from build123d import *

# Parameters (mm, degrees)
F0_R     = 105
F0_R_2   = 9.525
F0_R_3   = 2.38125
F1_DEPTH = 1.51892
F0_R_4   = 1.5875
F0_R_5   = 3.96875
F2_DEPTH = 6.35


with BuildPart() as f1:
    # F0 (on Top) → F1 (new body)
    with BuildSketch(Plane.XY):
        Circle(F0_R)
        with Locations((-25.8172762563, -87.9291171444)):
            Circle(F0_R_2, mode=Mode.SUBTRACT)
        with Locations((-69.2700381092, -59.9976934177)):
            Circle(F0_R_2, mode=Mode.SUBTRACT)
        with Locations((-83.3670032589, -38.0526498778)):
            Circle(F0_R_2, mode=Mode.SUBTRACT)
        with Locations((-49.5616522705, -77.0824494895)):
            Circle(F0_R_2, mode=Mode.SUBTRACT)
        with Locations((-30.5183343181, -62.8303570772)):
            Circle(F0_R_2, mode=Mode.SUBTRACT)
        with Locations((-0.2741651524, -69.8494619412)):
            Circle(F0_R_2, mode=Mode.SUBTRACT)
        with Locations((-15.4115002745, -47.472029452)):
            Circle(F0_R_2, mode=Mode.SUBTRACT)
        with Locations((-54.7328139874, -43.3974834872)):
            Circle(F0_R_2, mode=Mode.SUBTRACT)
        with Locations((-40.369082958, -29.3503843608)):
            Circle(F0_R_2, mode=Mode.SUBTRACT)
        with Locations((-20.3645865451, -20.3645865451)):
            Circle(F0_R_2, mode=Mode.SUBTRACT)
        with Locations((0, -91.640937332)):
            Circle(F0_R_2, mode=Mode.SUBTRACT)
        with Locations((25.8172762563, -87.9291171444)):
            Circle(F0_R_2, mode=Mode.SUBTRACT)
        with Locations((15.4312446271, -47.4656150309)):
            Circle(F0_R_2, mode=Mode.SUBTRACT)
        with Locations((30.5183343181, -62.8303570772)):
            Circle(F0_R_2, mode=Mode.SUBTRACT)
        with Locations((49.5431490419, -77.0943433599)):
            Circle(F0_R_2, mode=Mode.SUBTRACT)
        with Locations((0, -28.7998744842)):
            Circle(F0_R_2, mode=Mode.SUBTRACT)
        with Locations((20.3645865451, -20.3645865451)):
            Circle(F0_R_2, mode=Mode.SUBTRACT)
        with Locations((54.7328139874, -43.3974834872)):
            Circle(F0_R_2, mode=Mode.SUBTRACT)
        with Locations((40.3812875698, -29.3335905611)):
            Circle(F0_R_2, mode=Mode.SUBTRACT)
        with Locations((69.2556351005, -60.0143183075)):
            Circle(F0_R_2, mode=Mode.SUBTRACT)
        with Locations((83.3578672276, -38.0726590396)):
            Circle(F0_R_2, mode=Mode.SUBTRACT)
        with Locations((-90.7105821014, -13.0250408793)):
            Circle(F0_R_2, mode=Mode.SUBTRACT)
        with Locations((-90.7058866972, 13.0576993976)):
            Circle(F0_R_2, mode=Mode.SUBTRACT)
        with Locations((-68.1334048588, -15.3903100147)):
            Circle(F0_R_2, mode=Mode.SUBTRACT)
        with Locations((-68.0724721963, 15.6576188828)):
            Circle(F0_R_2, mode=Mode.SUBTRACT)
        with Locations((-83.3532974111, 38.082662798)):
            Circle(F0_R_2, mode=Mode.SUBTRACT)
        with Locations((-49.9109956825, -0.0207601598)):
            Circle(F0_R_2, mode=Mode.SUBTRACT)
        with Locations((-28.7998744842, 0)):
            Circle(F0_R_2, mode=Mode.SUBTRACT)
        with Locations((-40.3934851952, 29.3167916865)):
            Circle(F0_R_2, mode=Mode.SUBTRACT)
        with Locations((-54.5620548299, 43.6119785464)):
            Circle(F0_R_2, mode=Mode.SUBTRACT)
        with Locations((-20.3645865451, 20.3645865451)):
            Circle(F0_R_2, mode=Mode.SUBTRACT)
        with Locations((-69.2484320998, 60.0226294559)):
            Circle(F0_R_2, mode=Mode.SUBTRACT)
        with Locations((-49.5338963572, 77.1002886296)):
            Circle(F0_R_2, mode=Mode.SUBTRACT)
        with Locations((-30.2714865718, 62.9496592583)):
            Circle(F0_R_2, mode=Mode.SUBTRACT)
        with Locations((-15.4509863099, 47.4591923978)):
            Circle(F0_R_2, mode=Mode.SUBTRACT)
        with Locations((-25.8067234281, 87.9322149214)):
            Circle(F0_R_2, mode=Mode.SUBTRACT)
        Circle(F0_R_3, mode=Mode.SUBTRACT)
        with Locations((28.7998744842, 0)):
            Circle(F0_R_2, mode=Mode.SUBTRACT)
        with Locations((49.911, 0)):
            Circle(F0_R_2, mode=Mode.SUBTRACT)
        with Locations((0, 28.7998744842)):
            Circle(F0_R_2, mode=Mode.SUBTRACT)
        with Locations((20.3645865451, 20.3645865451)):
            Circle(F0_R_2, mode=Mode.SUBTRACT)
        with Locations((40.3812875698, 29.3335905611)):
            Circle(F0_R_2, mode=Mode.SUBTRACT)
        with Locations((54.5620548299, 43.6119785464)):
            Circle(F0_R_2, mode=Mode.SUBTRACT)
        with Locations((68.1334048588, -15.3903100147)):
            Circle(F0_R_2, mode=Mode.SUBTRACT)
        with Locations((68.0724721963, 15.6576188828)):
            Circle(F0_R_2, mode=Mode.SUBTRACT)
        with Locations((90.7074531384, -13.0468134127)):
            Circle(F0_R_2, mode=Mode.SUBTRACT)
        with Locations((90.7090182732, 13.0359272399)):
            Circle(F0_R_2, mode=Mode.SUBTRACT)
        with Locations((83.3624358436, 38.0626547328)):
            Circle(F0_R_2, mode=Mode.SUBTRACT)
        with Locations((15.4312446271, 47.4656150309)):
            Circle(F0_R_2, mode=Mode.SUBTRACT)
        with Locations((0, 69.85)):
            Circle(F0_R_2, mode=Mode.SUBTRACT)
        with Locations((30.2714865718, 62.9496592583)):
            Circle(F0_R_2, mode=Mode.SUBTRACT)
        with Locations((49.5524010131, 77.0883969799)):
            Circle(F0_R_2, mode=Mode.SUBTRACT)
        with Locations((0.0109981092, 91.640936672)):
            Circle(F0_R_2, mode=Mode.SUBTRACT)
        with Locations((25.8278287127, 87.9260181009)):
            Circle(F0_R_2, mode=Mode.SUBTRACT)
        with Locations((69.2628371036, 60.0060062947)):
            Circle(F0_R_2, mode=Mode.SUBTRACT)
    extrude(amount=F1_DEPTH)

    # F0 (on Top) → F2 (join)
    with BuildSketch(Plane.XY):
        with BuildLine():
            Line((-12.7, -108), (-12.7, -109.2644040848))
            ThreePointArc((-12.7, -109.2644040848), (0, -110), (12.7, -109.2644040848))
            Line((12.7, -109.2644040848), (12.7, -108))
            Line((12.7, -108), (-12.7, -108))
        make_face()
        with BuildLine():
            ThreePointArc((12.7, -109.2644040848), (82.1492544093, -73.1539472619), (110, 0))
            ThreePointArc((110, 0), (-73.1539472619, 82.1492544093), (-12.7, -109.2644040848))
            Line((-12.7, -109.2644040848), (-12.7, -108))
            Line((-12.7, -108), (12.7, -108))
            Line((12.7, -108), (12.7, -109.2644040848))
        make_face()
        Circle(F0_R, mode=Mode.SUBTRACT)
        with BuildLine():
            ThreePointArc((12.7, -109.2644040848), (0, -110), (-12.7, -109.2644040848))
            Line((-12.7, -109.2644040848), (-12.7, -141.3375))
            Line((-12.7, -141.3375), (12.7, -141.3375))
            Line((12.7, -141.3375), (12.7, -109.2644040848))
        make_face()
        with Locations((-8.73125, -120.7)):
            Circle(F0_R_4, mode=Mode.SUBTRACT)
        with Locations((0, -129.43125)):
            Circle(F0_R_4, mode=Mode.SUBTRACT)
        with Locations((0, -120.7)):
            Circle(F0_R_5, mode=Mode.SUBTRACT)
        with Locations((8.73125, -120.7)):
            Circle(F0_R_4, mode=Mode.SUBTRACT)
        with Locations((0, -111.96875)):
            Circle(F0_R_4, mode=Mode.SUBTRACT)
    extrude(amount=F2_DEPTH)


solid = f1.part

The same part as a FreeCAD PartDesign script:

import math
import FreeCAD as App
import Part
import Sketcher

V = App.Vector
Q = App.Units.Quantity

doc = App.newDocument("Part")
body = doc.addObject("PartDesign::Body", "Body")

# Sketch on XY plane
sketch1 = body.newObject("Sketcher::SketchObject", "Sketch")
sketch1.AttachmentSupport = (doc.getObject("XY_Plane"), [""])
sketch1.MapMode = "FlatFace"
sketch1.addGeometry(Part.Circle(V(0, 0, 0), V(0, 0, 1), 105), False)
sketch1.addGeometry(Part.Circle(V(-69.3, -60, 0), V(0, 0, 1), 9.5), False)
sketch1.addGeometry(Part.Circle(V(-49.6, -77.1, 0), V(0, 0, 1), 9.5), False)
sketch1.addGeometry(Part.Circle(V(-25.8, -87.9, 0), V(0, 0, 1), 9.5), False)
sketch1.addGeometry(Part.Circle(V(-30.5, -62.8, 0), V(0, 0, 1), 9.5), False)
sketch1.addGeometry(Part.Circle(V(-0.3, -69.8, 0), V(0, 0, 1), 9.5), False)
sketch1.addGeometry(Part.Circle(V(-83.4, -38.1, 0), V(0, 0, 1), 9.5), False)
sketch1.addGeometry(Part.Circle(V(-54.7, -43.4, 0), V(0, 0, 1), 9.5), False)
sketch1.addGeometry(Part.Circle(V(-90.7, -13, 0), V(0, 0, 1), 9.5), False)
sketch1.addGeometry(Part.Circle(V(-68.1, -15.4, 0), V(0, 0, 1), 9.5), False)
sketch1.addGeometry(Part.Circle(V(-40.4, -29.4, 0), V(0, 0, 1), 9.5), False)
sketch1.addGeometry(Part.Circle(V(-15.4, -47.5, 0), V(0, 0, 1), 9.5), False)
sketch1.addGeometry(Part.Circle(V(-49.9, 0, 0), V(0, 0, 1), 9.5), False)
sketch1.addGeometry(Part.Circle(V(-20.4, -20.4, 0), V(0, 0, 1), 9.5), False)
sketch1.addGeometry(Part.Circle(V(0, -91.6, 0), V(0, 0, 1), 9.5), False)
sketch1.addGeometry(Part.Circle(V(25.8, -87.9, 0), V(0, 0, 1), 9.5), False)
sketch1.addGeometry(Part.Circle(V(49.5, -77.1, 0), V(0, 0, 1), 9.5), False)
sketch1.addGeometry(Part.Circle(V(30.5, -62.8, 0), V(0, 0, 1), 9.5), False)
sketch1.addGeometry(Part.Circle(V(69.3, -60, 0), V(0, 0, 1), 9.5), False)
sketch1.addGeometry(Part.Circle(V(15.4, -47.5, 0), V(0, 0, 1), 9.5), False)
sketch1.addGeometry(Part.Circle(V(0, -28.8, 0), V(0, 0, 1), 9.5), False)
sketch1.addGeometry(Part.Circle(V(40.4, -29.3, 0), V(0, 0, 1), 9.5), False)
sketch1.addGeometry(Part.Circle(V(20.4, -20.4, 0), V(0, 0, 1), 9.5), False)
sketch1.addGeometry(Part.Circle(V(54.7, -43.4, 0), V(0, 0, 1), 9.5), False)
sketch1.addGeometry(Part.Circle(V(83.4, -38.1, 0), V(0, 0, 1), 9.5), False)
sketch1.addGeometry(Part.Circle(V(68.1, -15.4, 0), V(0, 0, 1), 9.5), False)
sketch1.addGeometry(Part.Circle(V(90.7, -13, 0), V(0, 0, 1), 9.5), False)
sketch1.addGeometry(Part.Circle(V(-90.7, 13.1, 0), V(0, 0, 1), 9.5), False)
sketch1.addGeometry(Part.Circle(V(-68.1, 15.7, 0), V(0, 0, 1), 9.5), False)
sketch1.addGeometry(Part.Circle(V(-83.4, 38.1, 0), V(0, 0, 1), 9.5), False)
sketch1.addGeometry(Part.Circle(V(-54.6, 43.6, 0), V(0, 0, 1), 9.5), False)
sketch1.addGeometry(Part.Circle(V(-28.8, 0, 0), V(0, 0, 1), 9.5), False)
sketch1.addGeometry(Part.Circle(V(-20.4, 20.4, 0), V(0, 0, 1), 9.5), False)
sketch1.addGeometry(Part.Circle(V(-40.4, 29.3, 0), V(0, 0, 1), 9.5), False)
sketch1.addGeometry(Part.Circle(V(-15.5, 47.5, 0), V(0, 0, 1), 9.5), False)
sketch1.addGeometry(Part.Circle(V(-69.2, 60, 0), V(0, 0, 1), 9.5), False)
sketch1.addGeometry(Part.Circle(V(-30.3, 62.9, 0), V(0, 0, 1), 9.5), False)
sketch1.addGeometry(Part.Circle(V(-49.5, 77.1, 0), V(0, 0, 1), 9.5), False)
sketch1.addGeometry(Part.Circle(V(-25.8, 87.9, 0), V(0, 0, 1), 9.5), False)
sketch1.addGeometry(Part.Circle(V(0, 0, 0), V(0, 0, 1), 2.4), False)
sketch1.addGeometry(Part.Circle(V(20.4, 20.4, 0), V(0, 0, 1), 9.5), False)
sketch1.addGeometry(Part.Circle(V(28.8, 0, 0), V(0, 0, 1), 9.5), False)
sketch1.addGeometry(Part.Circle(V(49.9, 0, 0), V(0, 0, 1), 9.5), False)
sketch1.addGeometry(Part.Circle(V(0, 28.8, 0), V(0, 0, 1), 9.5), False)
sketch1.addGeometry(Part.Circle(V(15.4, 47.5, 0), V(0, 0, 1), 9.5), False)
sketch1.addGeometry(Part.Circle(V(40.4, 29.3, 0), V(0, 0, 1), 9.5), False)
sketch1.addGeometry(Part.Circle(V(68.1, 15.7, 0), V(0, 0, 1), 9.5), False)
sketch1.addGeometry(Part.Circle(V(90.7, 13, 0), V(0, 0, 1), 9.5), False)
sketch1.addGeometry(Part.Circle(V(54.6, 43.6, 0), V(0, 0, 1), 9.5), False)
sketch1.addGeometry(Part.Circle(V(83.4, 38.1, 0), V(0, 0, 1), 9.5), False)
sketch1.addGeometry(Part.Circle(V(0, 69.8, 0), V(0, 0, 1), 9.5), False)
sketch1.addGeometry(Part.Circle(V(30.3, 62.9, 0), V(0, 0, 1), 9.5), False)
sketch1.addGeometry(Part.Circle(V(0, 91.6, 0), V(0, 0, 1), 9.5), False)
sketch1.addGeometry(Part.Circle(V(25.8, 87.9, 0), V(0, 0, 1), 9.5), False)
sketch1.addGeometry(Part.Circle(V(49.6, 77.1, 0), V(0, 0, 1), 9.5), False)
sketch1.addGeometry(Part.Circle(V(69.3, 60, 0), V(0, 0, 1), 9.5), False)
sketch1.addConstraint(Sketcher.Constraint("Coincident", 0, 3, -1, 1))
sketch1.addConstraint(Sketcher.Constraint("Coincident", 39, 3, -1, 1))
sketch1.addConstraint(Sketcher.Constraint("Equal", 1, 2))
sketch1.addConstraint(Sketcher.Constraint("Equal", 2, 3))
sketch1.addConstraint(Sketcher.Constraint("Equal", 3, 4))
sketch1.addConstraint(Sketcher.Constraint("Equal", 4, 5))
sketch1.addConstraint(Sketcher.Constraint("Equal", 5, 6))
sketch1.addConstraint(Sketcher.Constraint("Equal", 6, 7))
sketch1.addConstraint(Sketcher.Constraint("Equal", 7, 8))
sketch1.addConstraint(Sketcher.Constraint("Equal", 8, 9))
sketch1.addConstraint(Sketcher.Constraint("Equal", 9, 10))
sketch1.addConstraint(Sketcher.Constraint("Equal", 10, 11))
sketch1.addConstraint(Sketcher.Constraint("Equal", 11, 12))
sketch1.addConstraint(Sketcher.Constraint("Equal", 12, 13))
sketch1.addConstraint(Sketcher.Constraint("Equal", 13, 14))
sketch1.addConstraint(Sketcher.Constraint("Equal", 14, 15))
sketch1.addConstraint(Sketcher.Constraint("Equal", 15, 16))
sketch1.addConstraint(Sketcher.Constraint("Equal", 16, 17))
sketch1.addConstraint(Sketcher.Constraint("Equal", 17, 18))
sketch1.addConstraint(Sketcher.Constraint("Equal", 18, 19))
sketch1.addConstraint(Sketcher.Constraint("Equal", 19, 20))
sketch1.addConstraint(Sketcher.Constraint("Equal", 20, 21))
sketch1.addConstraint(Sketcher.Constraint("Equal", 21, 22))
sketch1.addConstraint(Sketcher.Constraint("Equal", 22, 23))
sketch1.addConstraint(Sketcher.Constraint("Equal", 23, 24))
sketch1.addConstraint(Sketcher.Constraint("Equal", 24, 25))
sketch1.addConstraint(Sketcher.Constraint("Equal", 25, 26))
sketch1.addConstraint(Sketcher.Constraint("Equal", 26, 27))
sketch1.addConstraint(Sketcher.Constraint("Equal", 27, 28))
sketch1.addConstraint(Sketcher.Constraint("Equal", 28, 29))
sketch1.addConstraint(Sketcher.Constraint("Equal", 29, 30))
sketch1.addConstraint(Sketcher.Constraint("Equal", 30, 31))
sketch1.addConstraint(Sketcher.Constraint("Equal", 31, 32))
sketch1.addConstraint(Sketcher.Constraint("Equal", 32, 33))
sketch1.addConstraint(Sketcher.Constraint("Equal", 33, 34))
sketch1.addConstraint(Sketcher.Constraint("Equal", 34, 35))
sketch1.addConstraint(Sketcher.Constraint("Equal", 35, 36))
sketch1.addConstraint(Sketcher.Constraint("Equal", 36, 37))
sketch1.addConstraint(Sketcher.Constraint("Equal", 37, 38))
sketch1.addConstraint(Sketcher.Constraint("Equal", 38, 40))
sketch1.addConstraint(Sketcher.Constraint("Equal", 40, 41))
sketch1.addConstraint(Sketcher.Constraint("Equal", 41, 42))
sketch1.addConstraint(Sketcher.Constraint("Equal", 42, 43))
sketch1.addConstraint(Sketcher.Constraint("Equal", 43, 44))
sketch1.addConstraint(Sketcher.Constraint("Equal", 44, 45))
sketch1.addConstraint(Sketcher.Constraint("Equal", 45, 46))
sketch1.addConstraint(Sketcher.Constraint("Equal", 46, 47))
sketch1.addConstraint(Sketcher.Constraint("Equal", 47, 48))
sketch1.addConstraint(Sketcher.Constraint("Equal", 48, 49))
sketch1.addConstraint(Sketcher.Constraint("Equal", 49, 50))
sketch1.addConstraint(Sketcher.Constraint("Equal", 50, 51))
sketch1.addConstraint(Sketcher.Constraint("Equal", 51, 52))
sketch1.addConstraint(Sketcher.Constraint("Equal", 52, 53))
sketch1.addConstraint(Sketcher.Constraint("Equal", 53, 54))
sketch1.addConstraint(Sketcher.Constraint("Equal", 54, 55))
sketch1.addConstraint(Sketcher.Constraint("Symmetric", 22, 3, 32, 3, -1, 1))
sketch1.addConstraint(Sketcher.Constraint("Symmetric", 13, 3, 40, 3, -1, 1))
sketch1.addConstraint(Sketcher.Constraint("Symmetric", 31, 3, 41, 3, -1, 1))
sketch1.addConstraint(Sketcher.Constraint("Symmetric", 20, 3, 43, 3, -1, 1))
sketch1.addConstraint(Sketcher.Constraint("Symmetric", 3, 3, 15, 3, -2))
sketch1.addConstraint(Sketcher.Constraint("Symmetric", 4, 3, 17, 3, -2))
sketch1.addConstraint(Sketcher.Constraint("Symmetric", 13, 3, 22, 3, -2))
sketch1.addConstraint(Sketcher.Constraint("Symmetric", 7, 3, 23, 3, -2))
sketch1.addConstraint(Sketcher.Constraint("Symmetric", 9, 3, 25, 3, -2))
sketch1.addConstraint(Sketcher.Constraint("Symmetric", 28, 3, 46, 3, -2))
sketch1.addConstraint(Sketcher.Constraint("Symmetric", 30, 3, 48, 3, -2))
sketch1.addConstraint(Sketcher.Constraint("Symmetric", 36, 3, 51, 3, -2))
sketch1.addConstraint(Sketcher.Constraint("Symmetric", 19, 3, 44, 3, -1))
sketch1.addConstraint(Sketcher.Constraint("Symmetric", 21, 3, 45, 3, -1))
sketch1.addConstraint(Sketcher.Constraint("PointOnObject", 14, 3, -2))
sketch1.addConstraint(Sketcher.Constraint("PointOnObject", 20, 3, -2))
sketch1.addConstraint(Sketcher.Constraint("PointOnObject", 31, 3, -1))
sketch1.addConstraint(Sketcher.Constraint("PointOnObject", 42, 3, -1))
sketch1.addConstraint(Sketcher.Constraint("PointOnObject", 50, 3, -2))
sketch1.addConstraint(Sketcher.Constraint("Diameter", 1, Q("0.75 in")))
sketch1.addConstraint(Sketcher.Constraint("Diameter", 39, Q("0.1875 in")))
sketch1.addConstraint(Sketcher.Constraint("Diameter", 0, Q("210 mm")))
sketch1.addConstraint(Sketcher.Constraint("DistanceY", -1, 1, 50, 3, Q("2.75 in")))
sketch1.addConstraint(Sketcher.Constraint("DistanceX", 12, 3, -1, 1, Q("1.9649998 in")))
sketch1.addConstraint(Sketcher.Constraint("DistanceX", -1, 1, 42, 3, Q("1.965 in")))
sketch1.addConstraint(Sketcher.Constraint("DistanceX", -1, 1, 18, 3, Q("2.7265998 in")))
sketch1.addConstraint(Sketcher.Constraint("DistanceY", 12, 3, 27, 3, Q("0.5149 in")))
sketch1.addConstraint(Sketcher.Constraint("DistanceX", 11, 3, -1, 1, Q("15.4115 mm")))
sketch1.addConstraint(Sketcher.Constraint("DistanceY", -1, 1, 27, 3, Q("13.057699 mm")))
sketch1.addConstraint(Sketcher.Constraint("DistanceX", -1, 1, 52, 3, Q("0.010998 mm")))
sketch1.addConstraint(Sketcher.Constraint("DistanceX", -1, 1, 54, 3, Q("49.552401 mm")))
sketch1.addConstraint(Sketcher.Constraint("DistanceY", 2, 3, 6, 3, Q("39.0298 mm")))
sketch1.addConstraint(Sketcher.Constraint("DistanceX", 6, 3, 9, 3, Q("15.233598 mm")))
sketch1.addConstraint(Sketcher.Constraint("DistanceY", 7, 3, 10, 3, Q("14.047099 mm")))
sketch1.addConstraint(Sketcher.Constraint("DistanceX", 5, 3, 17, 3, Q("30.792499 mm")))
sketch1.addConstraint(Sketcher.Constraint("DistanceX", 17, 3, 18, 3, Q("38.737301 mm")))
sketch1.addConstraint(Sketcher.Constraint("DistanceY", 15, 3, 18, 3, Q("27.914799 mm")))
sketch1.addConstraint(Sketcher.Constraint("DistanceX", 22, 3, 21, 3, Q("20.016701 mm")))
sketch1.addConstraint(Sketcher.Constraint("DistanceY", 17, 3, 24, 3, Q("24.757698 mm")))
sketch1.addConstraint(Sketcher.Constraint("DistanceX", 29, 3, 12, 3, Q("33.442302 mm")))
sketch1.addConstraint(Sketcher.Constraint("DistanceX", 33, 3, 32, 3, Q("20.028899 mm")))
sketch1.addConstraint(Sketcher.Constraint("DistanceX", 32, 3, 34, 3, Q("4.9136 mm")))
sketch1.addConstraint(Sketcher.Constraint("DistanceY", 33, 3, 34, 3, Q("18.142401 mm")))
sketch1.addConstraint(Sketcher.Constraint("DistanceX", 36, 3, 34, 3, Q("14.8205 mm")))
sketch1.addConstraint(Sketcher.Constraint("DistanceX", 55, 3, 49, 3, Q("14.099599 mm")))
sketch1.addConstraint(Sketcher.Constraint("DistanceX", 1, 3, -1, 1, Q("69.270038 mm")))
sketch1.addConstraint(Sketcher.Constraint("DistanceY", 2, 3, -1, 1, Q("77.082449 mm")))
sketch1.addConstraint(Sketcher.Constraint("DistanceY", 5, 3, -1, 1, Q("69.849462 mm")))
sketch1.addConstraint(Sketcher.Constraint("DistanceY", 8, 3, -1, 1, Q("13.025041 mm")))
sketch1.addConstraint(Sketcher.Constraint("DistanceY", 9, 3, -1, 1, Q("15.39031 mm")))
sketch1.addConstraint(Sketcher.Constraint("DistanceY", 11, 3, -1, 1, Q("47.472029 mm")))
sketch1.addConstraint(Sketcher.Constraint("DistanceX", -1, 1, 16, 3, Q("49.543149 mm")))
sketch1.addConstraint(Sketcher.Constraint("DistanceY", 18, 3, -1, 1, Q("60.014318 mm")))
sketch1.addConstraint(Sketcher.Constraint("DistanceY", 21, 3, -1, 1, Q("29.333591 mm")))
sketch1.addConstraint(Sketcher.Constraint("DistanceY", 24, 3, -1, 1, Q("38.072659 mm")))
sketch1.addConstraint(Sketcher.Constraint("DistanceY", -1, 1, 28, 3, Q("15.657619 mm")))
sketch1.addConstraint(Sketcher.Constraint("DistanceY", -1, 1, 30, 3, Q("43.611979 mm")))
sketch1.addConstraint(Sketcher.Constraint("DistanceY", -1, 1, 33, 3, Q("29.316792 mm")))
sketch1.addConstraint(Sketcher.Constraint("DistanceY", -1, 1, 35, 3, Q("60.022629 mm")))
sketch1.addConstraint(Sketcher.Constraint("DistanceY", -1, 1, 36, 3, Q("62.949659 mm")))
sketch1.addConstraint(Sketcher.Constraint("DistanceY", -1, 1, 37, 3, Q("77.100289 mm")))
sketch1.addConstraint(Sketcher.Constraint("DistanceX", -1, 1, 47, 3, Q("90.709018 mm")))
sketch1.addConstraint(Sketcher.Constraint("DistanceX", -1, 1, 53, 3, Q("25.827829 mm")))
sketch1.addConstraint(Sketcher.Constraint("DistanceY", -1, 1, 53, 3, Q("87.926018 mm")))
sketch1.addConstraint(Sketcher.Constraint("DistanceX", 1, 3, 3, 3, Q("43.452762 mm")))
sketch1.addConstraint(Sketcher.Constraint("DistanceY", 5, 3, 1, 3, Q("9.851769 mm")))
sketch1.addConstraint(Sketcher.Constraint("DistanceX", 6, 3, 2, 3, Q("33.805351 mm")))
sketch1.addConstraint(Sketcher.Constraint("DistanceX", 6, 3, 4, 3, Q("52.848669 mm")))
sketch1.addConstraint(Sketcher.Constraint("DistanceY", 1, 3, 7, 3, Q("16.60021 mm")))
sketch1.addConstraint(Sketcher.Constraint("DistanceX", 6, 3, 7, 3, Q("28.634189 mm")))
sketch1.addConstraint(Sketcher.Constraint("DistanceX", 8, 3, 6, 3, Q("7.343579 mm")))
sketch1.addConstraint(Sketcher.Constraint("DistanceX", 7, 3, 10, 3, Q("14.363731 mm")))
sketch1.addConstraint(Sketcher.Constraint("DistanceX", 12, 3, 13, 3, Q("29.546409 mm")))
sketch1.addConstraint(Sketcher.Constraint("DistanceY", 14, 3, 3, 3, Q("3.71182 mm")))
sketch1.addConstraint(Sketcher.Constraint("DistanceY", 16, 3, 5, 3, Q("7.244881 mm")))
sketch1.addConstraint(Sketcher.Constraint("DistanceX", 19, 3, 17, 3, Q("15.08709 mm")))
sketch1.addConstraint(Sketcher.Constraint("DistanceY", 19, 3, 13, 3, Q("27.101028 mm")))
sketch1.addConstraint(Sketcher.Constraint("DistanceY", 19, 3, 20, 3, Q("18.665741 mm")))
sketch1.addConstraint(Sketcher.Constraint("DistanceY", 10, 3, 20, 3, Q("0.55051 mm")))
sketch1.addConstraint(Sketcher.Constraint("DistanceX", 21, 3, 24, 3, Q("42.97658 mm")))
sketch1.addConstraint(Sketcher.Constraint("DistanceX", 25, 3, 26, 3, Q("22.574048 mm")))
sketch1.addConstraint(Sketcher.Constraint("DistanceY", 23, 3, 26, 3, Q("30.35067 mm")))
sketch1.addConstraint(Sketcher.Constraint("DistanceX", 27, 3, 9, 3, Q("22.572482 mm")))
sketch1.addConstraint(Sketcher.Constraint("DistanceX", 8, 3, 28, 3, Q("22.63811 mm")))
sketch1.addConstraint(Sketcher.Constraint("DistanceX", 30, 3, 12, 3, Q("4.651059 mm")))
sketch1.addConstraint(Sketcher.Constraint("DistanceX", 12, 3, 31, 3, Q("21.111121 mm")))
sketch1.addConstraint(Sketcher.Constraint("DistanceX", 35, 3, 28, 3, Q("1.17596 mm")))
sketch1.addConstraint(Sketcher.Constraint("DistanceX", 37, 3, 36, 3, Q("19.26241 mm")))
sketch1.addConstraint(Sketcher.Constraint("DistanceX", 35, 3, 38, 3, Q("43.441709 mm")))
sketch1.addConstraint(Sketcher.Constraint("DistanceY", 47, 3, 46, 3, Q("2.621692 mm")))
sketch1.addConstraint(Sketcher.Constraint("DistanceX", 48, 3, 49, 3, Q("28.800381 mm")))
sketch1.addConstraint(Sketcher.Constraint("DistanceY", 38, 3, 52, 3, Q("3.708722 mm")))
sketch1.addConstraint(Sketcher.Constraint("DistanceY", 44, 3, 52, 3, Q("44.175322 mm")))
sketch1.addConstraint(Sketcher.Constraint("DistanceY", 54, 3, 53, 3, Q("10.837621 mm")))
sketch1.addConstraint(Sketcher.Constraint("DistanceY", 49, 3, 55, 3, Q("21.943352 mm")))
sketch1.addConstraint(Sketcher.Constraint("DistanceY", 55, 3, 54, 3, Q("17.082391 mm")))
sketch1.addConstraint(Sketcher.Constraint("DistanceY", -1, 1, 29, 3, Q("38.082663 mm")))
pad1 = body.newObject("PartDesign::Pad", "Pad")
pad1.Profile = sketch1
pad1.Length = Q("0.0598 in")

# Sketch on XY plane
sketch2 = body.newObject("Sketcher::SketchObject", "Sketch001")
sketch2.AttachmentSupport = (doc.getObject("XY_Plane"), [""])
sketch2.MapMode = "FlatFace"
sketch2.addGeometry(Part.ArcOfCircle(Part.Circle(V(0, 0, 0), V(0, 0, 1), 110), math.radians(-83), math.radians(263)), False)
sketch2.addGeometry(Part.LineSegment(V(-12.7, -109.3, 0), V(-12.7, -141.3, 0)), False)
sketch2.addGeometry(Part.LineSegment(V(-12.7, -141.3, 0), V(12.7, -141.3, 0)), False)
sketch2.addGeometry(Part.LineSegment(V(12.7, -141.3, 0), V(12.7, -109.3, 0)), False)
sketch2.addGeometry(Part.Circle(V(-8.7, -120.7, 0), V(0, 0, 1), 1.6), False)
sketch2.addGeometry(Part.Circle(V(0, -129.4, 0), V(0, 0, 1), 1.6), False)
sketch2.addGeometry(Part.Circle(V(0, -120.7, 0), V(0, 0, 1), 4), False)
sketch2.addGeometry(Part.Circle(V(8.7, -120.7, 0), V(0, 0, 1), 1.6), False)
sketch2.addGeometry(Part.Circle(V(0, -112, 0), V(0, 0, 1), 1.6), False)
sketch2.addGeometry(Part.Circle(V(0, 0, 0), V(0, 0, 1), 105), False)
sketch2.addConstraint(Sketcher.Constraint("Coincident", 0, 2, 1, 1))
sketch2.addConstraint(Sketcher.Constraint("Coincident", 1, 2, 2, 1))
sketch2.addConstraint(Sketcher.Constraint("Coincident", 2, 2, 3, 1))
sketch2.addConstraint(Sketcher.Constraint("Coincident", 3, 2, 0, 1))
sketch2.addConstraint(Sketcher.Constraint("Vertical", 1))
sketch2.addConstraint(Sketcher.Constraint("Horizontal", 2))
sketch2.addConstraint(Sketcher.Constraint("Vertical", 3))
sketch2.addConstraint(Sketcher.Constraint("Coincident", 0, 3, -1, 1))
sketch2.addConstraint(Sketcher.Constraint("Coincident", 9, 3, -1, 1))
sketch2.addConstraint(Sketcher.Constraint("Equal", 4, 5))
sketch2.addConstraint(Sketcher.Constraint("Equal", 5, 7))
sketch2.addConstraint(Sketcher.Constraint("Equal", 7, 8))
sketch2.addConstraint(Sketcher.Constraint("Symmetric", 4, 3, 7, 3, -2))
sketch2.addConstraint(Sketcher.Constraint("PointOnObject", 5, 3, -2))
sketch2.addConstraint(Sketcher.Constraint("PointOnObject", 6, 3, -2))
sketch2.addConstraint(Sketcher.Constraint("PointOnObject", 8, 3, -2))
sketch2.addConstraint(Sketcher.Constraint("Horizontal", 4, 3, 6, 3))
sketch2.addConstraint(Sketcher.Constraint("Horizontal", 0, 2, 3, 2))
sketch2.addConstraint(Sketcher.Constraint("DistanceX", 2, 1, 2, 2, Q("1 in")))
sketch2.addConstraint(Sketcher.Constraint("Diameter", 4, Q("0.125 in")))
sketch2.addConstraint(Sketcher.Constraint("Diameter", 6, Q("0.3125 in")))
sketch2.addConstraint(Sketcher.Constraint("Diameter", 9, Q("210 mm")))
sketch2.addConstraint(Sketcher.Constraint("Radius", 0, Q("110 mm")))
sketch2.addConstraint(Sketcher.Constraint("DistanceX", 4, 3, -1, 1, Q("0.34375 in")))
sketch2.addConstraint(Sketcher.Constraint("DistanceY", 5, 3, 4, 3, Q("0.34375 in")))
sketch2.addConstraint(Sketcher.Constraint("DistanceY", 6, 3, 8, 3, Q("0.34375 in")))
sketch2.addConstraint(Sketcher.Constraint("DistanceY", 1, 2, 5, 3, Q("0.46875 in")))
sketch2.addConstraint(Sketcher.Constraint("DistanceY", 4, 3, -1, 1, Q("120.7 mm")))
pad2 = body.newObject("PartDesign::Pad", "Pad001")
pad2.Profile = sketch2
pad2.Length = Q("0.25 in")

doc.recompute()
